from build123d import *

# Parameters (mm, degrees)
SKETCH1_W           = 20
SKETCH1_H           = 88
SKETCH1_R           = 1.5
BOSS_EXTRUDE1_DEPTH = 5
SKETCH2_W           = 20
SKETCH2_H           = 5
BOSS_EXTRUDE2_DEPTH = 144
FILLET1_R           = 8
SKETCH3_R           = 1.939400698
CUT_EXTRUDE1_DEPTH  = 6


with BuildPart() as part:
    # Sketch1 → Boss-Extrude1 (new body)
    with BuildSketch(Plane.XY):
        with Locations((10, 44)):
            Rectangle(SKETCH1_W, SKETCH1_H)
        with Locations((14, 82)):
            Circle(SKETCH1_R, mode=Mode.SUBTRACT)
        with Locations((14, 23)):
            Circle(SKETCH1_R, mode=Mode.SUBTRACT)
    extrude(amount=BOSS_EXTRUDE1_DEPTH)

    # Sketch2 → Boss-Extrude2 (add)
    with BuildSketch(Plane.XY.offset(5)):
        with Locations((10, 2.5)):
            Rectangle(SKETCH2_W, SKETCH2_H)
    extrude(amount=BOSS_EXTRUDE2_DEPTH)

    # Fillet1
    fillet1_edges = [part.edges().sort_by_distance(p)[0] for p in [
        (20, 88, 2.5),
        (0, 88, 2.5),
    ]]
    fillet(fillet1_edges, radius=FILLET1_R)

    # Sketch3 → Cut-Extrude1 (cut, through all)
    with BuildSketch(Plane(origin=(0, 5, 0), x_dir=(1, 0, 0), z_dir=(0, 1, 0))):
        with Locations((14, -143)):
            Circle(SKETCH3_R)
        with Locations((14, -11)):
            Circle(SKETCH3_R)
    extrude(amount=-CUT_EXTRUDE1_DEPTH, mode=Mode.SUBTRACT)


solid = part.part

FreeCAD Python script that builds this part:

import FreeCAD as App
import Part
import Sketcher

V = App.Vector


def edges_at(feature, points):
    """Names of the edges that pass closest to the given points."""
    edges = feature.Shape.Edges
    near = lambda p: min(range(len(edges)), key=lambda i: edges[i].distToShape(Part.Vertex(*p))[0])
    return sorted({f"Edge{near(p) + 1}" for p in points})


def add_polygon(sketch, points):
    """Adds a closed chain of lines whose ends are joined by coincident constraints."""
    first, n = sketch.GeometryCount, len(points)
    for a, b in zip(points, points[1:] + points[:1]):
        sketch.addGeometry(Part.LineSegment(App.Vector(*a, 0), App.Vector(*b, 0)), False)
    for i in range(n):
        sketch.addConstraint(Sketcher.Constraint("Coincident", first + i, 2, first + (i + 1) % n, 1))

doc = App.newDocument("Part")
body = doc.addObject("PartDesign::Body", "Body")

sketch1 = body.newObject("Sketcher::SketchObject", "Sketch")
sketch1.AttachmentSupport = (doc.getObject("XY_Plane"), [""])
sketch1.MapMode = "FlatFace"
add_polygon(sketch1, [(0, 88), (0, 0), (20, 0), (20, 88)])
sketch1.addGeometry(Part.Circle(V(14, 23, 0), V(0, 0, 1), 1.5), False)
sketch1.addGeometry(Part.Circle(V(14, 82, 0), V(0, 0, 1), 1.5), False)
sketch1.addConstraint(Sketcher.Constraint("Vertical", 0))
sketch1.addConstraint(Sketcher.Constraint("Horizontal", 1))
sketch1.addConstraint(Sketcher.Constraint("Vertical", 2))
sketch1.addConstraint(Sketcher.Constraint("Horizontal", 3))
sketch1.addConstraint(Sketcher.Constraint("Coincident", 0, 2, -1, 1))
sketch1.addConstraint(Sketcher.Constraint("Equal", 4, 5))
sketch1.addConstraint(Sketcher.Constraint("Vertical", 4, 3, 5, 3))
sketch1.addConstraint(Sketcher.Constraint("Diameter", 4, 3.0))
sketch1.addConstraint(Sketcher.Constraint("DistanceX", 1, 1, 1, 2, 20.0))
sketch1.addConstraint(Sketcher.Constraint("DistanceY", 0, 2, 0, 1, 88.0))
sketch1.addConstraint(Sketcher.Constraint("DistanceX", -1, 1, 4, 3, 14.0))
sketch1.addConstraint(Sketcher.Constraint("DistanceY", -1, 1, 4, 3, 23.0))
sketch1.addConstraint(Sketcher.Constraint("DistanceY", -1, 1, 5, 3, 82.0))
pad1 = body.newObject("PartDesign::Pad", "Pad")
pad1.Profile = sketch1
pad1.Length = 5

sketch2 = body.newObject("Sketcher::SketchObject", "Sketch001")
sketch2.AttachmentSupport = (doc.getObject("XY_Plane"), [""])
sketch2.MapMode = "FlatFace"
sketch2.AttachmentOffset = App.Placement(V(0, 0, 5), App.Rotation())
add_polygon(sketch2, [(0, 5), (0, 0), (20, 0), (20, 5)])
sketch2.addConstraint(Sketcher.Constraint("Vertical", 0))
sketch2.addConstraint(Sketcher.Constraint("Horizontal", 1))
sketch2.addConstraint(Sketcher.Constraint("Vertical", 2))
sketch2.addConstraint(Sketcher.Constraint("Horizontal", 3))
sketch2.addConstraint(Sketcher.Constraint("Coincident", 0, 2, -1, 1))
sketch2.addConstraint(Sketcher.Constraint("DistanceX", 1, 1, 1, 2, 20.0))
sketch2.addConstraint(Sketcher.Constraint("DistanceY", 0, 2, 0, 1, 5.0))
pad2 = body.newObject("PartDesign::Pad", "Pad001")
pad2.Profile = sketch2
pad2.Length = 144
doc.recompute()

fillet = body.newObject("PartDesign::Fillet", "Fillet")
fillet.Base = (pad2, edges_at(pad2, [(20, 88, 2.5), (0, 88, 2.5)]))
fillet.Radius = 8

sketch3 = body.newObject("Sketcher::SketchObject", "Sketch002")
sketch3.AttachmentSupport = (doc.getObject("XZ_Plane"), [""])
sketch3.MapMode = "FlatFace"
sketch3.AttachmentOffset = App.Placement(V(0, 0, -5), App.Rotation())
sketch3.addGeometry(Part.Circle(V(14, 143, 0), V(0, 0, 1), 1.9), False)
sketch3.addGeometry(Part.Circle(V(14, 11, 0), V(0, 0, 1), 1.9), False)
sketch3.addConstraint(Sketcher.Constraint("Equal", 0, 1))
sketch3.addConstraint(Sketcher.Constraint("Vertical", 0, 3, 1, 3))
sketch3.addConstraint(Sketcher.Constraint("DistanceX", -1, 1, 0, 3, 14.0))
sketch3.addConstraint(Sketcher.Constraint("DistanceY", -1, 1, 0, 3, 143.0))
sketch3.addConstraint(Sketcher.Constraint("DistanceY", -1, 1, 1, 3, 11.0))
sketch3.addConstraint(Sketcher.Constraint("Diameter", 0, 3.878801))
pocket1 = body.newObject("PartDesign::Pocket", "Pocket")
pocket1.Profile = sketch3
pocket1.Type = "ThroughAll"
pocket1.Reversed = True

doc.recompute()
